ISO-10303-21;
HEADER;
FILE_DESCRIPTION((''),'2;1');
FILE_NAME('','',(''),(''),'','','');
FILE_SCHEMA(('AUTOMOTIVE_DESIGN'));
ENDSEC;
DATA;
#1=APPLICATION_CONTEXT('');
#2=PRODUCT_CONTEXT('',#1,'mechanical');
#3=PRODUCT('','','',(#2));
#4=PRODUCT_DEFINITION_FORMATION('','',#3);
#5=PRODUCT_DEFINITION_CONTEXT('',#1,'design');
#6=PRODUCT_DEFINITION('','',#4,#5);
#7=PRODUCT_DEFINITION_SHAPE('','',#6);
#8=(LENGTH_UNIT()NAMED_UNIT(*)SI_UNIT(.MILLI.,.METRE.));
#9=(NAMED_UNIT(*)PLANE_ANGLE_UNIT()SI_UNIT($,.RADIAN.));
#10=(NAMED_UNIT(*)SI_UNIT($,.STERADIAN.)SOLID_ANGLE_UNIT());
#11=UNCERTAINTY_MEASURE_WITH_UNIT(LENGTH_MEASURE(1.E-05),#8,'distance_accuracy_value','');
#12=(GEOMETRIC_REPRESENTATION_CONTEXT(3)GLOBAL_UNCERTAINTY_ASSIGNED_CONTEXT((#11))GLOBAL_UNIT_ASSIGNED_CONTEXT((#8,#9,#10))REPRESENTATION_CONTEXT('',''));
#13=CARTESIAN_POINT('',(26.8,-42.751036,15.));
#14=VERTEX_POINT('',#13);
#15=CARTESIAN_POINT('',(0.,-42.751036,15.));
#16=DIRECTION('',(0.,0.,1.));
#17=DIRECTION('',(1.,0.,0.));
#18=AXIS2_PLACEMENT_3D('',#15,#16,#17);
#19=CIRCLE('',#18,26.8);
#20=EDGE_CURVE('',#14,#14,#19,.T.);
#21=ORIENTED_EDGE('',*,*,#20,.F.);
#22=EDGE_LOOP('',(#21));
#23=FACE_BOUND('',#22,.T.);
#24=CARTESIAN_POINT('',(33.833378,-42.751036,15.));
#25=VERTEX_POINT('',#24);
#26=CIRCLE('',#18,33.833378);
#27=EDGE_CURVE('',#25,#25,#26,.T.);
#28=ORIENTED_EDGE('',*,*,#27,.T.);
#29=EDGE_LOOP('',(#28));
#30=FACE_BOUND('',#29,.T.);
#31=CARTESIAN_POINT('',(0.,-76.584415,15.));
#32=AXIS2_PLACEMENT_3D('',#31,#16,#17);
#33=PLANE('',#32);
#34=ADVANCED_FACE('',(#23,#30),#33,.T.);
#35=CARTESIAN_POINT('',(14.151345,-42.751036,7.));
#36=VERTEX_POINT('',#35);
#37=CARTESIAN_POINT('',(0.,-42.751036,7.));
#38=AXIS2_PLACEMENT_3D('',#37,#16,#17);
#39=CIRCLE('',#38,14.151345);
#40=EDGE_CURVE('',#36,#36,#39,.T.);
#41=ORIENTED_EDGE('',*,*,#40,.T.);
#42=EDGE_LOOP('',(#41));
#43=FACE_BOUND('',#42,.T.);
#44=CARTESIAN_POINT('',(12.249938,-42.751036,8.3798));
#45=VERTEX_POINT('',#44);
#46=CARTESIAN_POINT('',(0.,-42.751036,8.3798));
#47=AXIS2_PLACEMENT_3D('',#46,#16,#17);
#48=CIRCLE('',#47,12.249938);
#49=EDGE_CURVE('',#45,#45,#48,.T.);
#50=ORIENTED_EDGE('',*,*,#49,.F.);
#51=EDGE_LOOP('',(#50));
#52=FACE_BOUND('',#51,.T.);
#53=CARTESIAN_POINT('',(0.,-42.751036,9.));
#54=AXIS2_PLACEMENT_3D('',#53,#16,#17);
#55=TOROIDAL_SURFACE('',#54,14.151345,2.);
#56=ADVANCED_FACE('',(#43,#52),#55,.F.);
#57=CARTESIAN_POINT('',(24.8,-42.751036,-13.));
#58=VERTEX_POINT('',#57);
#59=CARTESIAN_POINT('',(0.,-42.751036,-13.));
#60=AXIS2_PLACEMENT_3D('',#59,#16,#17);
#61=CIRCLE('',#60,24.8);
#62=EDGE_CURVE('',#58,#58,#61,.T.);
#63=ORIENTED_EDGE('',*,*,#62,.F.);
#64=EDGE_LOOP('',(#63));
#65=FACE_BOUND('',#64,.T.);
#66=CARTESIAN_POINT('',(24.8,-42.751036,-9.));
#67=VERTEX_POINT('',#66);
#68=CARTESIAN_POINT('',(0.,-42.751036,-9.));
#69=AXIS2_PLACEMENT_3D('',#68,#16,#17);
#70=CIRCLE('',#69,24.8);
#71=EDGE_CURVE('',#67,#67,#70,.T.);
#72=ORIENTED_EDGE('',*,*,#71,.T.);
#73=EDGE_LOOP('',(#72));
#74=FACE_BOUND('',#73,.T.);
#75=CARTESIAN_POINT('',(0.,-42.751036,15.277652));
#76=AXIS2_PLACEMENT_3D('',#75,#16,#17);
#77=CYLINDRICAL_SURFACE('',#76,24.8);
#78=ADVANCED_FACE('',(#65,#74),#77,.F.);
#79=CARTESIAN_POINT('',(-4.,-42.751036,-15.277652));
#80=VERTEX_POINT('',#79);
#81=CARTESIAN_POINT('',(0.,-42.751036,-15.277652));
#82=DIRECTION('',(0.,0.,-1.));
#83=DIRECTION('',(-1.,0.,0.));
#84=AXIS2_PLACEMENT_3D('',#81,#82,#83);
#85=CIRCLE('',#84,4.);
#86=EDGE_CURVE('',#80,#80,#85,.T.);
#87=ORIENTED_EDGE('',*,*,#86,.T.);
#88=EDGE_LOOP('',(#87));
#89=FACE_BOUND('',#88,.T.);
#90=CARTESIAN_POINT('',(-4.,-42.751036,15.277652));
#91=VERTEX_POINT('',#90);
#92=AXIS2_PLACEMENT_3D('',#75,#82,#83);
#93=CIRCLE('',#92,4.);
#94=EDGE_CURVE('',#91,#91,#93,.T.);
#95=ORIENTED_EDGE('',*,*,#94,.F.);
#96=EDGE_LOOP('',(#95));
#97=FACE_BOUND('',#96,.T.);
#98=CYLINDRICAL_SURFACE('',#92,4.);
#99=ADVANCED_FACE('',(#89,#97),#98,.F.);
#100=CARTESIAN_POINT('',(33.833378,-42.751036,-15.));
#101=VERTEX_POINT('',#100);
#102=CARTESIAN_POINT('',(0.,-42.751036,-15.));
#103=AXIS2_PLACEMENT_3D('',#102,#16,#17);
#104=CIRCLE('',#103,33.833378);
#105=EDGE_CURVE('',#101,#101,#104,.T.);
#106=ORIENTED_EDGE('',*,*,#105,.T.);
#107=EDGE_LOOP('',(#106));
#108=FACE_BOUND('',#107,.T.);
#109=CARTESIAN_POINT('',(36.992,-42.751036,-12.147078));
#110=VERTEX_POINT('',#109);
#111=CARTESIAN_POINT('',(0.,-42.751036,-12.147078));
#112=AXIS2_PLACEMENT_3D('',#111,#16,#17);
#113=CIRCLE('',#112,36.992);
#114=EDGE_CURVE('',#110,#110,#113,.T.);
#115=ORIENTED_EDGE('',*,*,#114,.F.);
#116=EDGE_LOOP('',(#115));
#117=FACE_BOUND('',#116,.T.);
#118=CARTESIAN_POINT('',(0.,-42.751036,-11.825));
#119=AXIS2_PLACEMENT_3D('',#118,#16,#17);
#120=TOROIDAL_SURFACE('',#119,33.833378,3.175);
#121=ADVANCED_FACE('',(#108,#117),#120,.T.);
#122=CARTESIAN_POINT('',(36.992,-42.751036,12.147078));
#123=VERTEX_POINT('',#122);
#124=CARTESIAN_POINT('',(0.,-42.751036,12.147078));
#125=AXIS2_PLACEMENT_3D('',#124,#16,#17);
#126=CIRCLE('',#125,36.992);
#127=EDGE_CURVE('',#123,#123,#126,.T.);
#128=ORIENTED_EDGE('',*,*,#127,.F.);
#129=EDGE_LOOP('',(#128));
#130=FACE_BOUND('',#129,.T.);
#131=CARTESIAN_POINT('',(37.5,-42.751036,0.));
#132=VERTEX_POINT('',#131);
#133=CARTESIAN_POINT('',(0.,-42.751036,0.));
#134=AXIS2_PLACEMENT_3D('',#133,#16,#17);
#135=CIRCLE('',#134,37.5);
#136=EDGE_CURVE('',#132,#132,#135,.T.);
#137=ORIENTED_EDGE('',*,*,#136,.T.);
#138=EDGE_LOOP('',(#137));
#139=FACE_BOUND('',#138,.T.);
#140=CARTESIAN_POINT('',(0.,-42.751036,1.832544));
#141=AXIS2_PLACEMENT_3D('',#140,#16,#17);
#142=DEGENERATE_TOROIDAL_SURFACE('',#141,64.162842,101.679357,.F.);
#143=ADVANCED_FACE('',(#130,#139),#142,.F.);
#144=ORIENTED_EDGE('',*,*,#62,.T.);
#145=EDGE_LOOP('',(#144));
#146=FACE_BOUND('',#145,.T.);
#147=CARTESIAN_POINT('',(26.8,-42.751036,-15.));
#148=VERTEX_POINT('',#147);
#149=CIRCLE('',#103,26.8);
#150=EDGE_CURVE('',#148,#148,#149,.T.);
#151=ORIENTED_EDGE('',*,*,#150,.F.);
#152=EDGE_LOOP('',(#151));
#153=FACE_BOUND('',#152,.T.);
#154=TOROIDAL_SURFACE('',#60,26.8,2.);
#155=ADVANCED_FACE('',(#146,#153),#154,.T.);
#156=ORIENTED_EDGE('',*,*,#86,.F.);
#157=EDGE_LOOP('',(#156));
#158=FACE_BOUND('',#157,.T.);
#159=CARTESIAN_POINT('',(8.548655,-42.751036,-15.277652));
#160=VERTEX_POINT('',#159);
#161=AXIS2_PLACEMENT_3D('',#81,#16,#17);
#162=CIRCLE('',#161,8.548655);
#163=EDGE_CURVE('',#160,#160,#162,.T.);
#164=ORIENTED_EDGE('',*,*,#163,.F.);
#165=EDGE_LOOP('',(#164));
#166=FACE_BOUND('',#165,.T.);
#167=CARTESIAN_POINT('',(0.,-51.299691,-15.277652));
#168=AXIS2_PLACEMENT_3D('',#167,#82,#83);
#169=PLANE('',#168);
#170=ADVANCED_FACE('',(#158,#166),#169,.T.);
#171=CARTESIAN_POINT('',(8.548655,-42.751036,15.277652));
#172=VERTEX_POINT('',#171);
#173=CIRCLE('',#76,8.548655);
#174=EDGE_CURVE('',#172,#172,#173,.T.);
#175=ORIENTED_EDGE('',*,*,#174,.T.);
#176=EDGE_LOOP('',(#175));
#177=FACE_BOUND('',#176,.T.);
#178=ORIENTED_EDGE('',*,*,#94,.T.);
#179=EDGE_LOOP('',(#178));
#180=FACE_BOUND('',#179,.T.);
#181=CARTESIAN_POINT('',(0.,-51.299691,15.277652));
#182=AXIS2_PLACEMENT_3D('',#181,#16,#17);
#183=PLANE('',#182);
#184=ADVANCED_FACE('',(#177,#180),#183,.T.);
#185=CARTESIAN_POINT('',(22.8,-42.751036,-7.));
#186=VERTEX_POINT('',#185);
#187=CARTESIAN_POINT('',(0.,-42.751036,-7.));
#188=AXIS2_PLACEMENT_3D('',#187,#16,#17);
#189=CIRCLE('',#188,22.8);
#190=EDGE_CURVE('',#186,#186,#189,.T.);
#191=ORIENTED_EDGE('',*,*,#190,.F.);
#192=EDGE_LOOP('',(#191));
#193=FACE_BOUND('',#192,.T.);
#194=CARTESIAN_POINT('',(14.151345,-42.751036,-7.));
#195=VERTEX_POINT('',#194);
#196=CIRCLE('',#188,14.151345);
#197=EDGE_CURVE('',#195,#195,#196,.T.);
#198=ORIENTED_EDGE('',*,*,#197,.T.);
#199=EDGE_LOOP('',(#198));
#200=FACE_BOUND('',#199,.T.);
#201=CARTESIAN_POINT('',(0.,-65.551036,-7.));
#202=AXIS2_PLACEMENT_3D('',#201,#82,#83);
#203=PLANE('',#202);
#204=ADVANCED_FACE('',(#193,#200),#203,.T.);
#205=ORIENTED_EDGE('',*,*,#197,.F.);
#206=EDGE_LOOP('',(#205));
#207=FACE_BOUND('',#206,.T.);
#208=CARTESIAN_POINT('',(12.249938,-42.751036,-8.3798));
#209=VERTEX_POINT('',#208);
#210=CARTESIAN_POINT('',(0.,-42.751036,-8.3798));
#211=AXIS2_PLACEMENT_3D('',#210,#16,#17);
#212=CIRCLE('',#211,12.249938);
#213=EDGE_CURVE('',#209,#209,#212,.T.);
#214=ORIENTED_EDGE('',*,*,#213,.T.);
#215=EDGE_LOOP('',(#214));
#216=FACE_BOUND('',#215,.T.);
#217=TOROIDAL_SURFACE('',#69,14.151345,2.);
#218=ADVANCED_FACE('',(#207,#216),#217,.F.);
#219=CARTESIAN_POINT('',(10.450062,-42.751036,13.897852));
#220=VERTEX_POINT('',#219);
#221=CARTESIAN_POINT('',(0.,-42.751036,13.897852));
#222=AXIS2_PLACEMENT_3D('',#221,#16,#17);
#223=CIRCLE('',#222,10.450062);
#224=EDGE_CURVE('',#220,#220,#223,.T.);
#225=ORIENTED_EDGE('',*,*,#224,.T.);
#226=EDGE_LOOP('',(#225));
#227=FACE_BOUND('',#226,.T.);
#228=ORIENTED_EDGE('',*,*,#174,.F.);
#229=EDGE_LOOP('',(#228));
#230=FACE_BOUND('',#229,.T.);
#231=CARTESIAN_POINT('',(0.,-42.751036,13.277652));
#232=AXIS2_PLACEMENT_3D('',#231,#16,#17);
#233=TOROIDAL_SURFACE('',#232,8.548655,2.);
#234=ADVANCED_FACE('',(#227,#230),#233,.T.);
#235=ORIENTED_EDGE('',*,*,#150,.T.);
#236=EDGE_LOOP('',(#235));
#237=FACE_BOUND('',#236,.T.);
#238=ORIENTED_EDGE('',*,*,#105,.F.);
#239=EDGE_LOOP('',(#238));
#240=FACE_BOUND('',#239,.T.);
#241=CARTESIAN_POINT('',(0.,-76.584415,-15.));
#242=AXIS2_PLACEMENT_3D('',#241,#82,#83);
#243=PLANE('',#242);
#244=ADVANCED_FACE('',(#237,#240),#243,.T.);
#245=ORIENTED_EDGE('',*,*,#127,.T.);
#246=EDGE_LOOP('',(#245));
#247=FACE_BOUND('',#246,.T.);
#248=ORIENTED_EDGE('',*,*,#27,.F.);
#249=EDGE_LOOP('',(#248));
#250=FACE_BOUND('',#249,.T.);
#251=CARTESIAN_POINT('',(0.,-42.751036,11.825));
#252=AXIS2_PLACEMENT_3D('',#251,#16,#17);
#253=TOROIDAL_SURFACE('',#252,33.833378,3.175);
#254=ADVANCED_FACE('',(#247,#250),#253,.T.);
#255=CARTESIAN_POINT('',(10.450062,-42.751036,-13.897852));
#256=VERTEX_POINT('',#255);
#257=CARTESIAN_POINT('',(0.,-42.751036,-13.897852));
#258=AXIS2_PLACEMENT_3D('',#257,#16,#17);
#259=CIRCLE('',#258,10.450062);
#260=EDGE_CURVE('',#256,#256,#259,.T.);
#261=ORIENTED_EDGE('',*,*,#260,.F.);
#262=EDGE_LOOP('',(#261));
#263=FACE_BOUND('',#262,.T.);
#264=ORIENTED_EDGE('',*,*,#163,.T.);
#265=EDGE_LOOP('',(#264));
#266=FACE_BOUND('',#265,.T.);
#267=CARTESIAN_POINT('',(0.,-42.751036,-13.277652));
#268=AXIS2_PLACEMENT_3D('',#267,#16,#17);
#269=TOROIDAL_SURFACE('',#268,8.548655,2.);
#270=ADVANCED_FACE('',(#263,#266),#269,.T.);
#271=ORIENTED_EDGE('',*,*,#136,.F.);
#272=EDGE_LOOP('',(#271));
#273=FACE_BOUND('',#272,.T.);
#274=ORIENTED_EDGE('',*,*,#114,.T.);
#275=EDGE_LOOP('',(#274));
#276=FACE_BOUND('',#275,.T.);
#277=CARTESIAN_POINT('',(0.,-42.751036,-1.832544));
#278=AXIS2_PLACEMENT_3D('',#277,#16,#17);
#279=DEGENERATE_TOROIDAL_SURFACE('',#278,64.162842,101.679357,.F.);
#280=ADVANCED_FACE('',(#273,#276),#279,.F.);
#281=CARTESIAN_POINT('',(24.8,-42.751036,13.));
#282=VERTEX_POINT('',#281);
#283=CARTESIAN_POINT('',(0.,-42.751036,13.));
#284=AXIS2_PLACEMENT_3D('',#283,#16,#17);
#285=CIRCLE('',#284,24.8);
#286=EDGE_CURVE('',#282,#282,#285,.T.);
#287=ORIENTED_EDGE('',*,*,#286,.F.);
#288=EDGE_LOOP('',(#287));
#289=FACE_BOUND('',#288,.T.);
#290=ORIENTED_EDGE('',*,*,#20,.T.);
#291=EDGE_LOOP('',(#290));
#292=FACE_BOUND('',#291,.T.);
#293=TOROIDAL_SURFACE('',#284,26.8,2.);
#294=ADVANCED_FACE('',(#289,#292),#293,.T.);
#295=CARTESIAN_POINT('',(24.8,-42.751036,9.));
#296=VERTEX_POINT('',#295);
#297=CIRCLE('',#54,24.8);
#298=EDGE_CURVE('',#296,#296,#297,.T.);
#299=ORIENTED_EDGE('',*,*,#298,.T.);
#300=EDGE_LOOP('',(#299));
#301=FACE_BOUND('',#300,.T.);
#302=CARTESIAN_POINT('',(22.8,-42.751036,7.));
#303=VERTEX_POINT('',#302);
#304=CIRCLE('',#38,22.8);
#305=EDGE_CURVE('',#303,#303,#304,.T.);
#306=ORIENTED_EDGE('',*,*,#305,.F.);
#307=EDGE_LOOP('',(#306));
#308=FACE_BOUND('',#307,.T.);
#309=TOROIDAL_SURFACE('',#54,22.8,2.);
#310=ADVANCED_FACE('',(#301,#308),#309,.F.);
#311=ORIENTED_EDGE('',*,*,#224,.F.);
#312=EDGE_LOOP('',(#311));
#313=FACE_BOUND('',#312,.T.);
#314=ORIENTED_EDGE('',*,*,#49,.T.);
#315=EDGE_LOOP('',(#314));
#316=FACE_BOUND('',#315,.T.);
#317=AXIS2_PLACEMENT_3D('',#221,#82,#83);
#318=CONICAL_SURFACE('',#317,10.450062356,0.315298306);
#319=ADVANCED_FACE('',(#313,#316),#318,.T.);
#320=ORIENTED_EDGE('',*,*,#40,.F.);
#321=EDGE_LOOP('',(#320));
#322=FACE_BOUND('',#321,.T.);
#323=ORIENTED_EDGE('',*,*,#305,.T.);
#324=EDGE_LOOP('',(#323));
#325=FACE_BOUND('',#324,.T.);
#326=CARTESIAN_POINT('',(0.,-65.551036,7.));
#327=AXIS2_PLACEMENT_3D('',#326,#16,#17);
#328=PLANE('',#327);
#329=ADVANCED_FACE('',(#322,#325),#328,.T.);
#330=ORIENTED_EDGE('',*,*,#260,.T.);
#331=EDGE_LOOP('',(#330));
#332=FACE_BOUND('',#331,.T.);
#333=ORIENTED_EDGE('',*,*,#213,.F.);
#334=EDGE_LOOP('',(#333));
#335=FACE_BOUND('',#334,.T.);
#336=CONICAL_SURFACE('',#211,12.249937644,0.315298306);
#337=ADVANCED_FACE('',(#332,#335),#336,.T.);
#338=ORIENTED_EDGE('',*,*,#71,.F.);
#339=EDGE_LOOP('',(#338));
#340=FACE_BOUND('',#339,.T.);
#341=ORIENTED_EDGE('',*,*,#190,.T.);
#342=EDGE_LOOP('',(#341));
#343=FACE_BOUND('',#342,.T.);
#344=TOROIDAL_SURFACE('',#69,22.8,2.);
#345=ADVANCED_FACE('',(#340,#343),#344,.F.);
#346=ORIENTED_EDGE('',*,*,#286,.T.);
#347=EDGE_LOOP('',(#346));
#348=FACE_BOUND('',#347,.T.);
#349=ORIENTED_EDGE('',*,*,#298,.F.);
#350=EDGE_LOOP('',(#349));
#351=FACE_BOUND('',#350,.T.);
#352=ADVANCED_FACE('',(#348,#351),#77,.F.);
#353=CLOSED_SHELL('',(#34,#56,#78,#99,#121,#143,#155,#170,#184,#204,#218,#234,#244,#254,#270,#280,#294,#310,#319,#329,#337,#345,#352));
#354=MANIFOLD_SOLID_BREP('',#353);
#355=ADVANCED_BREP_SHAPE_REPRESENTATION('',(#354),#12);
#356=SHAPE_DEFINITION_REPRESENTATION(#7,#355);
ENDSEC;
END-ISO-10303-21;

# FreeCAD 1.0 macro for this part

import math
import FreeCAD as App
import Part
import Sketcher

V = App.Vector
Q = App.Units.Quantity

doc = App.newDocument("Part")
body = doc.addObject("PartDesign::Body", "Body")

# Sketch on YZ plane
sketch1 = doc.addObject("Sketcher::SketchObject", "Sketch")
body.addObject(sketch1)
sketch1.AttachmentSupport = (doc.YZ_Plane, [""])
sketch1.MapMode = "FlatFace"
sketch1.addGeometry(Part.LineSegment(V(-42.8, -15.3, 0), V(-42.8, 15.3, 0)), False)
sketch1.addGeometry(Part.LineSegment(V(-42.8, 15.3, 0), V(-51.3, 15.3, 0)), False)
sketch1.addGeometry(Part.ArcOfCircle(Part.Circle(V(-51.3, 13.3, 0), V(0, 0, 1), 2), math.radians(90), math.radians(162)), False)
sketch1.addGeometry(Part.LineSegment(V(-53.2, 13.9, 0), V(-55, 8.4, 0)), False)
sketch1.addGeometry(Part.ArcOfCircle(Part.Circle(V(-56.9, 9, 0), V(0, 0, 1), 2), math.radians(-90), math.radians(-18)), False)
sketch1.addGeometry(Part.LineSegment(V(-56.9, 7, 0), V(-65.6, 7, 0)), False)
sketch1.addGeometry(Part.ArcOfCircle(Part.Circle(V(-65.6, 9, 0), V(0, 0, 1), 2), math.radians(180), math.radians(270)), False)
sketch1.addGeometry(Part.LineSegment(V(-67.6, 9, 0), V(-67.6, 13, 0)), False)
sketch1.addGeometry(Part.ArcOfCircle(Part.Circle(V(-69.6, 13, 0), V(0, 0, 1), 2), math.radians(0), math.radians(90)), False)
sketch1.addGeometry(Part.LineSegment(V(-69.6, 15, 0), V(-76.6, 15, 0)), False)
sketch1.addGeometry(Part.ArcOfCircle(Part.Circle(V(-76.6, 11.8, 0), V(0, 0, 1), 3.2), math.radians(90), math.radians(174)), False)
sketch1.addGeometry(Part.ArcOfCircle(Part.Circle(V(21.4, 1.8, 0), V(0, 0, 1), 101.7), math.radians(174.18), math.radians(181.03)), False)
sketch1.addGeometry(Part.ArcOfCircle(Part.Circle(V(21.4, -1.8, 0), V(0, 0, 1), 101.7), math.radians(178.97), math.radians(185.82)), False)
sketch1.addGeometry(Part.ArcOfCircle(Part.Circle(V(-76.6, -11.8, 0), V(0, 0, 1), 3.2), math.radians(-174), math.radians(-90)), False)
sketch1.addGeometry(Part.LineSegment(V(-76.6, -15, 0), V(-69.6, -15, 0)), False)
sketch1.addGeometry(Part.ArcOfCircle(Part.Circle(V(-69.6, -13, 0), V(0, 0, 1), 2), math.radians(-90), math.radians(0)), False)
sketch1.addGeometry(Part.LineSegment(V(-67.6, -13, 0), V(-67.6, -9, 0)), False)
sketch1.addGeometry(Part.ArcOfCircle(Part.Circle(V(-65.6, -9, 0), V(0, 0, 1), 2), math.radians(90), math.radians(180)), False)
sketch1.addGeometry(Part.LineSegment(V(-65.6, -7, 0), V(-56.9, -7, 0)), False)
sketch1.addGeometry(Part.ArcOfCircle(Part.Circle(V(-56.9, -9, 0), V(0, 0, 1), 2), math.radians(18), math.radians(90)), False)
sketch1.addGeometry(Part.LineSegment(V(-55, -8.4, 0), V(-53.2, -13.9, 0)), False)
sketch1.addGeometry(Part.ArcOfCircle(Part.Circle(V(-51.3, -13.3, 0), V(0, 0, 1), 2), math.radians(-162), math.radians(-90)), False)
sketch1.addGeometry(Part.LineSegment(V(-51.3, -15.3, 0), V(-42.8, -15.3, 0)), False)
sketch1.addGeometry(Part.LineSegment(V(-42.8, 15.3, 0), V(-42.8, -15.3, 0)), True)  # axis
sketch1.addConstraint(Sketcher.Constraint("Coincident", 0, 2, 1, 1))
sketch1.addConstraint(Sketcher.Constraint("Tangent", 1, 2, 2, 1))
sketch1.addConstraint(Sketcher.Constraint("Tangent", 2, 2, 3, 1))
sketch1.addConstraint(Sketcher.Constraint("Tangent", 3, 2, 4, 2))
sketch1.addConstraint(Sketcher.Constraint("Tangent", 4, 1, 5, 1))
sketch1.addConstraint(Sketcher.Constraint("Tangent", 5, 2, 6, 2))
sketch1.addConstraint(Sketcher.Constraint("Tangent", 6, 1, 7, 1))
sketch1.addConstraint(Sketcher.Constraint("Tangent", 7, 2, 8, 1))
sketch1.addConstraint(Sketcher.Constraint("Tangent", 8, 2, 9, 1))
sketch1.addConstraint(Sketcher.Constraint("Tangent", 9, 2, 10, 1))
sketch1.addConstraint(Sketcher.Constraint("Tangent", 10, 2, 11, 1))
sketch1.addConstraint(Sketcher.Constraint("Coincident", 11, 2, 12, 1))
sketch1.addConstraint(Sketcher.Constraint("Tangent", 12, 2, 13, 1))
sketch1.addConstraint(Sketcher.Constraint("Tangent", 13, 2, 14, 1))
sketch1.addConstraint(Sketcher.Constraint("Tangent", 14, 2, 15, 1))
sketch1.addConstraint(Sketcher.Constraint("Tangent", 15, 2, 16, 1))
sketch1.addConstraint(Sketcher.Constraint("Tangent", 16, 2, 17, 2))
sketch1.addConstraint(Sketcher.Constraint("Tangent", 17, 1, 18, 1))
sketch1.addConstraint(Sketcher.Constraint("Tangent", 18, 2, 19, 2))
sketch1.addConstraint(Sketcher.Constraint("Tangent", 19, 1, 20, 1))
sketch1.addConstraint(Sketcher.Constraint("Tangent", 20, 2, 21, 1))
sketch1.addConstraint(Sketcher.Constraint("Tangent", 21, 2, 22, 1))
sketch1.addConstraint(Sketcher.Constraint("Coincident", 22, 2, 0, 1))
sketch1.addConstraint(Sketcher.Constraint("Vertical", 0))
sketch1.addConstraint(Sketcher.Constraint("Horizontal", 1))
sketch1.addConstraint(Sketcher.Constraint("Horizontal", 5))
sketch1.addConstraint(Sketcher.Constraint("Vertical", 7))
sketch1.addConstraint(Sketcher.Constraint("Horizontal", 9))
sketch1.addConstraint(Sketcher.Constraint("Horizontal", 14))
sketch1.addConstraint(Sketcher.Constraint("Vertical", 16))
sketch1.addConstraint(Sketcher.Constraint("Horizontal", 18))
sketch1.addConstraint(Sketcher.Constraint("Horizontal", 22))
sketch1.addConstraint(Sketcher.Constraint("Vertical", 23))
sketch1.addConstraint(Sketcher.Constraint("Coincident", 23, 1, 0, 2))
sketch1.addConstraint(Sketcher.Constraint("Equal", 2, 4))
sketch1.addConstraint(Sketcher.Constraint("Equal", 4, 6))
sketch1.addConstraint(Sketcher.Constraint("Equal", 6, 8))
sketch1.addConstraint(Sketcher.Constraint("Equal", 11, 12))
sketch1.addConstraint(Sketcher.Constraint("Equal", 10, 13))
sketch1.addConstraint(Sketcher.Constraint("Equal", 8, 15))
sketch1.addConstraint(Sketcher.Constraint("Equal", 15, 17))
sketch1.addConstraint(Sketcher.Constraint("Equal", 17, 19))
sketch1.addConstraint(Sketcher.Constraint("Equal", 19, 21))
sketch1.addConstraint(Sketcher.Constraint("Symmetric", 11, 3, 12, 3, -1))
sketch1.addConstraint(Sketcher.Constraint("Symmetric", 8, 3, 15, 3, -1))
sketch1.addConstraint(Sketcher.Constraint("Symmetric", 4, 3, 19, 3, -1))
sketch1.addConstraint(Sketcher.Constraint("Symmetric", 2, 3, 21, 3, -1))
sketch1.addConstraint(Sketcher.Constraint("Horizontal", 21, 2, 23, 2))
sketch1.addConstraint(Sketcher.Constraint("Radius", 2, Q("2 mm")))
sketch1.addConstraint(Sketcher.Constraint("DistanceY", 7, 1, 7, 2, Q("4 mm")))
sketch1.addConstraint(Sketcher.Constraint("DistanceY", -1, 1, 4, 3, Q("9 mm")))
sketch1.addConstraint(Sketcher.Constraint("Radius", 10, Q("3.175 mm")))
sketch1.addConstraint(Sketcher.Constraint("DistanceX", 6, 3, 0, 2, Q("22.8 mm")))
sketch1.addConstraint(Sketcher.Constraint("DistanceX", 11, 2, 6, 1, Q("12.7 mm")))
sketch1.addConstraint(Sketcher.Constraint("Radius", 11, Q("101.679357 mm")))
sketch1.addConstraint(Sketcher.Constraint("DistanceX", 10, 2, 8, 3, Q("10.192 mm")))
sketch1.addConstraint(Sketcher.Constraint("DistanceX", 2, 2, -1, 1, Q("53.201099 mm")))
sketch1.addConstraint(Sketcher.Constraint("DistanceY", -1, 1, 3, 2, Q("8.3798 mm")))
sketch1.addConstraint(Sketcher.Constraint("DistanceX", 1, 2, 1, 1, Q("8.548655 mm")))
sketch1.addConstraint(Sketcher.Constraint("DistanceX", 5, 2, 5, 1, Q("8.648655 mm")))
revolution = doc.addObject("PartDesign::Revolution", "Revolution")
body.addObject(revolution)
revolution.Profile = sketch1
revolution.ReferenceAxis = (sketch1, ["Axis0"])
revolution.Angle = 360

# Sketch on XY plane
sketch2 = doc.addObject("Sketcher::SketchObject", "Sketch001")
body.addObject(sketch2)
sketch2.AttachmentSupport = (doc.XY_Plane, [""])
sketch2.MapMode = "FlatFace"
sketch2.AttachmentOffset = App.Placement(V(0, 0, -15.277652), App.Rotation())
sketch2.addGeometry(Part.Circle(V(0, -42.8, 0), V(0, 0, 1), 4), False)
sketch2.addConstraint(Sketcher.Constraint("PointOnObject", 0, 3, -2))
sketch2.addConstraint(Sketcher.Constraint("Diameter", 0, Q("8 mm")))
sketch2.addConstraint(Sketcher.Constraint("DistanceY", 0, 3, -1, 1, Q("42.751036 mm")))
pocket1 = doc.addObject("PartDesign::Pocket", "Pocket")
body.addObject(pocket1)
pocket1.Profile = sketch2
pocket1.Type = "ThroughAll"
pocket1.Reversed = True

doc.recompute()
